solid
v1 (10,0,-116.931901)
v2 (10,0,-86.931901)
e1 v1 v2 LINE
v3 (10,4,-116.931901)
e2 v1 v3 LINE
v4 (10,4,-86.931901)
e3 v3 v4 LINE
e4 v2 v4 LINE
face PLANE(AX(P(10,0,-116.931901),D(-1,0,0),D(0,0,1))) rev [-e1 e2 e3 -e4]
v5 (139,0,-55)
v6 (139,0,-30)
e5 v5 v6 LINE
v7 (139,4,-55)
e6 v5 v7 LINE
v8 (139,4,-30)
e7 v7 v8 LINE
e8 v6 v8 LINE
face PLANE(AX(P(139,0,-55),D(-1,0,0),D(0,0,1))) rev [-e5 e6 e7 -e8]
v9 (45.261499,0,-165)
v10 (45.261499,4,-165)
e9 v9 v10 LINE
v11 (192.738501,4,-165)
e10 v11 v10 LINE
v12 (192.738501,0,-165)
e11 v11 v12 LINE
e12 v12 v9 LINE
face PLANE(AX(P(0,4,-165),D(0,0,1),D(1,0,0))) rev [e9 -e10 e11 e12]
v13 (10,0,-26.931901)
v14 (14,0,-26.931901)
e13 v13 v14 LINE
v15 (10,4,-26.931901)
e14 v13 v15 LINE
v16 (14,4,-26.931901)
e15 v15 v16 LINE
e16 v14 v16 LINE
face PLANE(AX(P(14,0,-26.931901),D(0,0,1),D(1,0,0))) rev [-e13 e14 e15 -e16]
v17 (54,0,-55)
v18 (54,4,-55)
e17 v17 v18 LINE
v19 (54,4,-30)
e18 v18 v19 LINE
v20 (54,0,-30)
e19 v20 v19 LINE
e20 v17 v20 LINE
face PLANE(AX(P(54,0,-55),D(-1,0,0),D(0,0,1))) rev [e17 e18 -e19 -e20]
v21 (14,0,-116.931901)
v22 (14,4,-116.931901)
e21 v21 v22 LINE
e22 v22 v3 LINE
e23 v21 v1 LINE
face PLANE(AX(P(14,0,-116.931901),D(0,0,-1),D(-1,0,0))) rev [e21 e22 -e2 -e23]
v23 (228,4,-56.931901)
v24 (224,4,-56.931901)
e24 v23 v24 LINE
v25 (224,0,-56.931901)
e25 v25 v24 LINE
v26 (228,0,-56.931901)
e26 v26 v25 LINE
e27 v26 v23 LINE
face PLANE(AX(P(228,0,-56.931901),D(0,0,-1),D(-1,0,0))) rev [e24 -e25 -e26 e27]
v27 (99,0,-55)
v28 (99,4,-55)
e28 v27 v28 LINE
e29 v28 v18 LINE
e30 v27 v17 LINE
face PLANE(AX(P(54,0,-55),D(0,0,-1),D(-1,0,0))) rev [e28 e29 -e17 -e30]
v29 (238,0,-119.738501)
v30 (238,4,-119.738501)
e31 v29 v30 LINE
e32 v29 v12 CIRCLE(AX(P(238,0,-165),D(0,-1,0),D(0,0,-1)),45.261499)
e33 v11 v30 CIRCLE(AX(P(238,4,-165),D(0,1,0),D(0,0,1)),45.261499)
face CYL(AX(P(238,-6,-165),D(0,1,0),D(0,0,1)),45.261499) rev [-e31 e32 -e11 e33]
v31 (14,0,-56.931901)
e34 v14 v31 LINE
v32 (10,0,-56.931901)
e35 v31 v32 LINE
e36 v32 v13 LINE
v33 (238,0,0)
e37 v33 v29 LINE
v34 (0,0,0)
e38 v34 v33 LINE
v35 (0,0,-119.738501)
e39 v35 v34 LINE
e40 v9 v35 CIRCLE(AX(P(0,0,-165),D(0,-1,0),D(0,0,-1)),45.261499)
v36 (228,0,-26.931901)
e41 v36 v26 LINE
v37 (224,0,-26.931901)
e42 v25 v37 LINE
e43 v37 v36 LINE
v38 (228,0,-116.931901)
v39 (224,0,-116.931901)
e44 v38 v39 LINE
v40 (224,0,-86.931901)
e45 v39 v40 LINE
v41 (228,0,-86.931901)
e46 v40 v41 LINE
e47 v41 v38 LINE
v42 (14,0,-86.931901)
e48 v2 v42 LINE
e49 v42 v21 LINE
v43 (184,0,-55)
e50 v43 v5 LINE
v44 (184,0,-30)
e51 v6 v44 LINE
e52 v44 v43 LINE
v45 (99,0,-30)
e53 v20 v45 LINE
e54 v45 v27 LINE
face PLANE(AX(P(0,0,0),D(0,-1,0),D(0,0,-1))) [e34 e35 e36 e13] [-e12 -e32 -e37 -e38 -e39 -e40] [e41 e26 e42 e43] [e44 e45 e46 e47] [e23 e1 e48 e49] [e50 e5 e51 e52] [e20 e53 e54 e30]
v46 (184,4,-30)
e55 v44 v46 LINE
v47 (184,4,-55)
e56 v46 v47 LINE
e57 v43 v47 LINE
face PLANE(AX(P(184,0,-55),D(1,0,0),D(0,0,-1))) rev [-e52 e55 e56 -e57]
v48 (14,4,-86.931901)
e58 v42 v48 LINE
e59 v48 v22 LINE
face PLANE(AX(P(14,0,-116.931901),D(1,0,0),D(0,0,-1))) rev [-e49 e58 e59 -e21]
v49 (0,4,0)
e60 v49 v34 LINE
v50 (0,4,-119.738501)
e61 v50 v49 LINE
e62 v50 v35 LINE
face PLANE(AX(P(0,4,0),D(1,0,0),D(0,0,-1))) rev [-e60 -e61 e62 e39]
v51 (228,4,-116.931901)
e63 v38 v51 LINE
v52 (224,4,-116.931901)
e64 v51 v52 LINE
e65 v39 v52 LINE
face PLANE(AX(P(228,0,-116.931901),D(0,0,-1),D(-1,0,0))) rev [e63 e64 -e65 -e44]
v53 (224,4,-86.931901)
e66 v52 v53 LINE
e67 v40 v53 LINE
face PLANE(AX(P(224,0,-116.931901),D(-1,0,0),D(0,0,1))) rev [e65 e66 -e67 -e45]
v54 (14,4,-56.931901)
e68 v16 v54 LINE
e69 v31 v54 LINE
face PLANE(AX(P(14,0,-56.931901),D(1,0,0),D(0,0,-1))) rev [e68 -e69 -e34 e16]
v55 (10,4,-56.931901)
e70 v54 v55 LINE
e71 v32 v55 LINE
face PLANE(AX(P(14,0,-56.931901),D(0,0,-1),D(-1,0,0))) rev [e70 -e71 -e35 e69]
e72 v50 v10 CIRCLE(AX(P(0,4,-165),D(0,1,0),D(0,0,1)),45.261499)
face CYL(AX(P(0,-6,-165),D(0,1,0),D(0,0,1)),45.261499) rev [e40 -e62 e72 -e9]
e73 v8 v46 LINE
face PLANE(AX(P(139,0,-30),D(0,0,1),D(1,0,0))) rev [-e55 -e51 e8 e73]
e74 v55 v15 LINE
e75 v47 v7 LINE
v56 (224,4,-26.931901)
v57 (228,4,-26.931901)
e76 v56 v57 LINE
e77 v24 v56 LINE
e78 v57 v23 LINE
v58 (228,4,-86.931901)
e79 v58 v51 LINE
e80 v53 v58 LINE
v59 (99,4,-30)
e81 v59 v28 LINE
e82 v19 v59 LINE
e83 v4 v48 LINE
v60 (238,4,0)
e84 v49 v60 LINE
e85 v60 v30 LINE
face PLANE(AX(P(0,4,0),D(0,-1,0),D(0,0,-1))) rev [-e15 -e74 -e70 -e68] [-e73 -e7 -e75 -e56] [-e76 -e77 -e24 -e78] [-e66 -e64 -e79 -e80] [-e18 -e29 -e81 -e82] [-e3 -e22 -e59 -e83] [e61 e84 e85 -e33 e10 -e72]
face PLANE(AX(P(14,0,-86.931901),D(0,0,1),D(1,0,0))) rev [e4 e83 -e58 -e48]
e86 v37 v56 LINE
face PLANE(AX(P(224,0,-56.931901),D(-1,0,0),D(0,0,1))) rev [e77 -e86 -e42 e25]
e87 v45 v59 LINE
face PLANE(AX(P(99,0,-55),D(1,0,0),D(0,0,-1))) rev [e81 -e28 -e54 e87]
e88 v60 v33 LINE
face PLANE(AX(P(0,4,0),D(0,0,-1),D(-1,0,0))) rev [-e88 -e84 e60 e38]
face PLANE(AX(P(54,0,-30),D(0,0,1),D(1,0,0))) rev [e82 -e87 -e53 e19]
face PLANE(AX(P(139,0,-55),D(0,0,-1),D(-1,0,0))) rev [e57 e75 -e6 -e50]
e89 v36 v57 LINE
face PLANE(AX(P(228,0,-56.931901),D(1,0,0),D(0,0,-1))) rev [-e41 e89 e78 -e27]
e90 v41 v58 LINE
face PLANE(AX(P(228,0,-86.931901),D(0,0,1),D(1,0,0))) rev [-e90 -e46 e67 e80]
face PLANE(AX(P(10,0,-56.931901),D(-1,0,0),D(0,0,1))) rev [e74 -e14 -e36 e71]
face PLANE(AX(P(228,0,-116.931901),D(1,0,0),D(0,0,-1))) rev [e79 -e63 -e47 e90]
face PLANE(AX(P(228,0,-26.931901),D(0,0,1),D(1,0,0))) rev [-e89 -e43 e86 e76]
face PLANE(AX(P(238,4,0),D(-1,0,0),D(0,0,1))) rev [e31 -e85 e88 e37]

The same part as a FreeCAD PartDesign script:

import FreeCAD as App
import Part
import Sketcher

V = App.Vector
Q = App.Units.Quantity


def add_polygon(sketch, points):
    """Adds a closed chain of lines whose ends are joined by coincident constraints."""
    first, n = sketch.GeometryCount, len(points)
    for a, b in zip(points, points[1:] + points[:1]):
        sketch.addGeometry(Part.LineSegment(App.Vector(*a, 0), App.Vector(*b, 0)), False)
    for i in range(n):
        sketch.addConstraint(Sketcher.Constraint("Coincident", first + i, 2, first + (i + 1) % n, 1))

doc = App.newDocument("Part")
body = doc.addObject("PartDesign::Body", "Body")

# Sketch on XZ plane
sketch1 = body.newObject("Sketcher::SketchObject", "Sketch")
sketch1.AttachmentSupport = (doc.getObject("XZ_Plane"), [""])
sketch1.MapMode = "FlatFace"
add_polygon(sketch1, [(0, -165), (0, 0), (238, 0), (238, -165)])  # lines 0-3
sketch1.addConstraint(Sketcher.Constraint("Vertical", 0))
sketch1.addConstraint(Sketcher.Constraint("Horizontal", 1))
sketch1.addConstraint(Sketcher.Constraint("Vertical", 2))
sketch1.addConstraint(Sketcher.Constraint("Horizontal", 3))
sketch1.addConstraint(Sketcher.Constraint("Coincident", 0, 2, -1, 1))
sketch1.addConstraint(Sketcher.Constraint("DistanceX", 1, 1, 1, 2, Q("238 mm")))
sketch1.addConstraint(Sketcher.Constraint("DistanceY", 0, 1, 0, 2, Q("165 mm")))
pad1 = body.newObject("PartDesign::Pad", "Pad")
pad1.Profile = sketch1
pad1.Length = 4
pad1.Reversed = True

# Sketch on XZ plane
sketch2 = body.newObject("Sketcher::SketchObject", "Sketch001")
sketch2.AttachmentSupport = (doc.getObject("XZ_Plane"), [""])
sketch2.MapMode = "FlatFace"
sketch2.AttachmentOffset = App.Placement(V(0, 0, -4), App.Rotation())
add_polygon(sketch2, [(224, -116.931901), (224, -86.931901), (228, -86.931901), (228, -116.931901)])  # lines 0-3
add_polygon(sketch2, [(224, -56.931901), (224, -26.931901), (228, -26.931901), (228, -56.931901)])  # lines 4-7
add_polygon(sketch2, [(10, -116.931901), (10, -86.931901), (14, -86.931901), (14, -116.931901)])  # lines 8-11
add_polygon(sketch2, [(10, -56.931901), (10, -26.931901), (14, -26.931901), (14, -56.931901)])  # lines 12-15
sketch2.addConstraint(Sketcher.Constraint("Vertical", 0))
sketch2.addConstraint(Sketcher.Constraint("Horizontal", 1))
sketch2.addConstraint(Sketcher.Constraint("Vertical", 2))
sketch2.addConstraint(Sketcher.Constraint("Horizontal", 3))
sketch2.addConstraint(Sketcher.Constraint("Vertical", 4))
sketch2.addConstraint(Sketcher.Constraint("Horizontal", 5))
sketch2.addConstraint(Sketcher.Constraint("Vertical", 6))
sketch2.addConstraint(Sketcher.Constraint("Horizontal", 7))
sketch2.addConstraint(Sketcher.Constraint("Vertical", 8))
sketch2.addConstraint(Sketcher.Constraint("Horizontal", 9))
sketch2.addConstraint(Sketcher.Constraint("Vertical", 10))
sketch2.addConstraint(Sketcher.Constraint("Horizontal", 11))
sketch2.addConstraint(Sketcher.Constraint("Vertical", 12))
sketch2.addConstraint(Sketcher.Constraint("Horizontal", 13))
sketch2.addConstraint(Sketcher.Constraint("Vertical", 14))
sketch2.addConstraint(Sketcher.Constraint("Horizontal", 15))
sketch2.addConstraint(Sketcher.Constraint("Horizontal", 1, 2, 8, 2))
sketch2.addConstraint(Sketcher.Constraint("Horizontal", 3, 2, 10, 2))
sketch2.addConstraint(Sketcher.Constraint("Horizontal", 5, 2, 12, 2))
sketch2.addConstraint(Sketcher.Constraint("Horizontal", 7, 2, 14, 2))
sketch2.addConstraint(Sketcher.Constraint("Vertical", 3, 2, 4, 2))
sketch2.addConstraint(Sketcher.Constraint("Vertical", 2, 2, 5, 2))
sketch2.addConstraint(Sketcher.Constraint("Vertical", 11, 2, 12, 2))
sketch2.addConstraint(Sketcher.Constraint("Vertical", 10, 2, 13, 2))
sketch2.addConstraint(Sketcher.Constraint("Equal", 7, 9))
sketch2.addConstraint(Sketcher.Constraint("Equal", 2, 4))
sketch2.addConstraint(Sketcher.Constraint("DistanceX", 1, 1, 1, 2, Q("4 mm")))
sketch2.addConstraint(Sketcher.Constraint("DistanceY", 0, 1, 0, 2, Q("30 mm")))
sketch2.addConstraint(Sketcher.Constraint("DistanceX", -1, 1, 0, 2, Q("224 mm")))
sketch2.addConstraint(Sketcher.Constraint("DistanceX", -1, 1, 8, 2, Q("10 mm")))
sketch2.addConstraint(Sketcher.Constraint("DistanceY", 0, 2, 4, 2, Q("60 mm")))
sketch2.addConstraint(Sketcher.Constraint("DistanceY", 0, 2, -1, 1, Q("86.931901 mm")))
pocket1 = body.newObject("PartDesign::Pocket", "Pocket")
pocket1.Profile = sketch2
pocket1.Type = "ThroughAll"
pocket1.Reversed = True

# Sketch on XZ plane
sketch3 = body.newObject("Sketcher::SketchObject", "Sketch002")
sketch3.AttachmentSupport = (doc.getObject("XZ_Plane"), [""])
sketch3.MapMode = "FlatFace"
sketch3.AttachmentOffset = App.Placement(V(0, 0, -4), App.Rotation())
sketch3.addGeometry(Part.Circle(V(238, -165, 0), V(0, 0, 1), 45.261499), False)
sketch3.addGeometry(Part.Circle(V(0, -165, 0), V(0, 0, 1), 45.261499), False)
sketch3.addConstraint(Sketcher.Constraint("Equal", 0, 1))
sketch3.addConstraint(Sketcher.Constraint("PointOnObject", 1, 3, -2))
sketch3.addConstraint(Sketcher.Constraint("Horizontal", 0, 3, 1, 3))
sketch3.addConstraint(Sketcher.Constraint("DistanceX", -1, 1, 0, 3, Q("238 mm")))
sketch3.addConstraint(Sketcher.Constraint("DistanceY", 0, 3, -1, 1, Q("165 mm")))
sketch3.addConstraint(Sketcher.Constraint("Diameter", 0, Q("90.522997 mm")))
pocket2 = body.newObject("PartDesign::Pocket", "Pocket001")
pocket2.Profile = sketch3
pocket2.Length = 10
pocket2.Reversed = True

# Sketch on XZ plane
sketch4 = body.newObject("Sketcher::SketchObject", "Sketch003")
sketch4.AttachmentSupport = (doc.getObject("XZ_Plane"), [""])
sketch4.MapMode = "FlatFace"
sketch4.AttachmentOffset = App.Placement(V(0, 0, -4), App.Rotation())
add_polygon(sketch4, [(54, -55), (54, -30), (99, -30), (99, -55)])  # lines 0-3
add_polygon(sketch4, [(139, -55), (139, -30), (184, -30), (184, -55)])  # lines 4-7
sketch4.addConstraint(Sketcher.Constraint("Vertical", 0))
sketch4.addConstraint(Sketcher.Constraint("Horizontal", 1))
sketch4.addConstraint(Sketcher.Constraint("Vertical", 2))
sketch4.addConstraint(Sketcher.Constraint("Horizontal", 3))
sketch4.addConstraint(Sketcher.Constraint("Vertical", 4))
sketch4.addConstraint(Sketcher.Constraint("Horizontal", 5))
sketch4.addConstraint(Sketcher.Constraint("Vertical", 6))
sketch4.addConstraint(Sketcher.Constraint("Horizontal", 7))
sketch4.addConstraint(Sketcher.Constraint("Horizontal", 1, 2, 4, 2))
sketch4.addConstraint(Sketcher.Constraint("Horizontal", 3, 2, 6, 2))
sketch4.addConstraint(Sketcher.Constraint("Equal", 3, 5))
sketch4.addConstraint(Sketcher.Constraint("DistanceX", 1, 1, 1, 2, Q("45 mm")))
sketch4.addConstraint(Sketcher.Constraint("DistanceY", 0, 1, 0, 2, Q("25 mm")))
sketch4.addConstraint(Sketcher.Constraint("DistanceX", -1, 1, 0, 2, Q("54 mm")))
sketch4.addConstraint(Sketcher.Constraint("DistanceY", 0, 2, -1, 1, Q("30 mm")))
sketch4.addConstraint(Sketcher.Constraint("DistanceX", -1, 1, 4, 2, Q("139 mm")))
pocket3 = body.newObject("PartDesign::Pocket", "Pocket002")
pocket3.Profile = sketch4
pocket3.Type = "ThroughAll"
pocket3.Reversed = True

doc.recompute()
